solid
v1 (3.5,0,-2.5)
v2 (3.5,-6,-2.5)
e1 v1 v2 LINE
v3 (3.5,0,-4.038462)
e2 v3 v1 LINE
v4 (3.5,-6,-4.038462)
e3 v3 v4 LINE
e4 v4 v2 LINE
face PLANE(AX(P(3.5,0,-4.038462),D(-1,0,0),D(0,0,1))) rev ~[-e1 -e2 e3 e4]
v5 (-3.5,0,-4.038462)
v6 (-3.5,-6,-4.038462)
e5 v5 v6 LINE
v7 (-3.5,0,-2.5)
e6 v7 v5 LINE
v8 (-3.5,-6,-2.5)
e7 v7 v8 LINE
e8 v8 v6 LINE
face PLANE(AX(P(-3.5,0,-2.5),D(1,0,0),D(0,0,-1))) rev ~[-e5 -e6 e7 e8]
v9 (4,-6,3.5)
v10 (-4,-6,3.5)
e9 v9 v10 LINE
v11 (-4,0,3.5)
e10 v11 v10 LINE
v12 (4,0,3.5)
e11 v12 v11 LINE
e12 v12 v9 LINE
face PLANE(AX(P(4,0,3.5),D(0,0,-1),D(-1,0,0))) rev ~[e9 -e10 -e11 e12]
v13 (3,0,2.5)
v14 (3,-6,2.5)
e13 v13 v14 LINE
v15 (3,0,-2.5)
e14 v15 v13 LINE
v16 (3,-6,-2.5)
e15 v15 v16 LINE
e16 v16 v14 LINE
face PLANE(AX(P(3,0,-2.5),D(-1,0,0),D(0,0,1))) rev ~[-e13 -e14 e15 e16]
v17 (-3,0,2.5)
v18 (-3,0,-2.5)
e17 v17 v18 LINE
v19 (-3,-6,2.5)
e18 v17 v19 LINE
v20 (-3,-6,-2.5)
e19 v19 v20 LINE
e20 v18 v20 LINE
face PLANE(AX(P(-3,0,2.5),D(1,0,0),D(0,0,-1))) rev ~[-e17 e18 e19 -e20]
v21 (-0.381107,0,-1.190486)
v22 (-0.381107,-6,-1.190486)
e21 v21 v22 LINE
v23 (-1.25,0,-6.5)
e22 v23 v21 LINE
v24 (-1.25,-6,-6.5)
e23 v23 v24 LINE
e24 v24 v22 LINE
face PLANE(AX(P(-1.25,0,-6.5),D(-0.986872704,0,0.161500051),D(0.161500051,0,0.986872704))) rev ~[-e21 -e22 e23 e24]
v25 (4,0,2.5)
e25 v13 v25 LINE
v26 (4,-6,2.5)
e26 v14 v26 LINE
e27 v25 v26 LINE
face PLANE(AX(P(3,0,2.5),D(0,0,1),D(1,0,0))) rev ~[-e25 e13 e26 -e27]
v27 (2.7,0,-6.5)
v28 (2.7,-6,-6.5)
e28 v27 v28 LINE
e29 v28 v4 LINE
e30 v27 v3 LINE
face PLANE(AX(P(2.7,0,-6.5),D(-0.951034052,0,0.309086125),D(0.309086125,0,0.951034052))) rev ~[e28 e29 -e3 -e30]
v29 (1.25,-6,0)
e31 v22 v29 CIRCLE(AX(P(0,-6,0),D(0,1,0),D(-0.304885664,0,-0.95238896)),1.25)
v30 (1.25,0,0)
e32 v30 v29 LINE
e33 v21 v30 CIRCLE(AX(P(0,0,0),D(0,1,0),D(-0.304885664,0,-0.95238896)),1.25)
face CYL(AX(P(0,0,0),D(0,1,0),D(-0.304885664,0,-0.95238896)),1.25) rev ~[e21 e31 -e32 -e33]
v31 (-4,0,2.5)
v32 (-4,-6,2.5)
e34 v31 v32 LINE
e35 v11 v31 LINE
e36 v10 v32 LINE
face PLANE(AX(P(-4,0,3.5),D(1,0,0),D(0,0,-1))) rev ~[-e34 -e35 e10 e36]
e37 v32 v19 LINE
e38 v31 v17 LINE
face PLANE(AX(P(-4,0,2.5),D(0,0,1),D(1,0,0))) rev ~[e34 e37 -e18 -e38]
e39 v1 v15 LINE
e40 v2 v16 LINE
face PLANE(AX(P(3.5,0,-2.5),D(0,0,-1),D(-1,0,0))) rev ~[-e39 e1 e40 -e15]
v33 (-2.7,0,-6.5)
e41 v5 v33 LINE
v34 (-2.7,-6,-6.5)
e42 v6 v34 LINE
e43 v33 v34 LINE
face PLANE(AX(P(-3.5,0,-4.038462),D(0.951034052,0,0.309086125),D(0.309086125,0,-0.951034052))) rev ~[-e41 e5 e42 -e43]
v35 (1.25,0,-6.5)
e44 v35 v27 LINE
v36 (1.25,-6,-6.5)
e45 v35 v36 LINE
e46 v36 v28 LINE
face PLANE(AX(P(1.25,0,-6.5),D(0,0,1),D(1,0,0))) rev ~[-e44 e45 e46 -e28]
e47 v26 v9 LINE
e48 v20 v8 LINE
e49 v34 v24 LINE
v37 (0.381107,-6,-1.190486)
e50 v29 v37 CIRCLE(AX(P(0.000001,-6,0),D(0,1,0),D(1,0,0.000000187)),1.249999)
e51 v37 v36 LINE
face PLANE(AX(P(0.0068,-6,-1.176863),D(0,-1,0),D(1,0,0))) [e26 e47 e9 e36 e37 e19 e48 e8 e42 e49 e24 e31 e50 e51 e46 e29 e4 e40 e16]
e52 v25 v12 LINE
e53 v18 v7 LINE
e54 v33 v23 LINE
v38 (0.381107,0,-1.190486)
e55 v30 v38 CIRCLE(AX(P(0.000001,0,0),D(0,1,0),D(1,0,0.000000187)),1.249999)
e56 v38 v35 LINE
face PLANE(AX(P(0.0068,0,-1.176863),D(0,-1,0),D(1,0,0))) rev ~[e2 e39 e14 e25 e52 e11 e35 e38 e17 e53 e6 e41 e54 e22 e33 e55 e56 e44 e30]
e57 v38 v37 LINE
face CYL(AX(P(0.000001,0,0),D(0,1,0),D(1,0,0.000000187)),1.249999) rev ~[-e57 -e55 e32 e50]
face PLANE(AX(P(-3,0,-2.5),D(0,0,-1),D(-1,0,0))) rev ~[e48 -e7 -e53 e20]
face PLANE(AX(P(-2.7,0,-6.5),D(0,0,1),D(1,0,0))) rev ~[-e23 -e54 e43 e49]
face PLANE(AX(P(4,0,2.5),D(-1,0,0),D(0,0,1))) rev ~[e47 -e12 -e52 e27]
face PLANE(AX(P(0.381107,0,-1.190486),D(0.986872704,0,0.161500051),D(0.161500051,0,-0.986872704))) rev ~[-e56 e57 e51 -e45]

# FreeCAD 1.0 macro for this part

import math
import FreeCAD as App
import Part
import Sketcher
from FreeCAD import Vector

doc = App.newDocument("Part")
params = doc.addObject("Spreadsheet::Sheet", "Params")
for row, (alias, value) in enumerate([
    ("sketch1_width", "8 mm"),
    ("sketch1_width2", "1 mm"),
    ("sketch1_height", "5 mm"),
    ("sketch1_radius", "1.25 mm"),
    ("sketch1_width3", "0.5 mm"),
    ("pad1_length", "6 mm"),
], start=1):
    params.set(f"A{row}", alias)
    params.set(f"B{row}", "=" + value)
    params.setAlias(f"B{row}", alias)

body = doc.addObject("PartDesign::Body", "Body")

sketch1 = doc.addObject("Sketcher::SketchObject", "Sketch")
body.addObject(sketch1)
sketch1.AttachmentSupport = (doc.XZ_Plane, [""])
sketch1.MapMode = "FlatFace"
sketch1.addGeometry(Part.LineSegment(Vector(4, 3.5, 0), Vector(-4, 3.5, 0)), False)
sketch1.addGeometry(Part.LineSegment(Vector(-4, 3.5, 0), Vector(-4, 2.5, 0)), False)
sketch1.addGeometry(Part.LineSegment(Vector(-4, 2.5, 0), Vector(-3, 2.5, 0)), False)
sketch1.addGeometry(Part.LineSegment(Vector(-3, 2.5, 0), Vector(-3, -2.5, 0)), False)
sketch1.addGeometry(Part.LineSegment(Vector(-3, -2.5, 0), Vector(-3.5, -2.5, 0)), False)
sketch1.addGeometry(Part.LineSegment(Vector(-3.5, -2.5, 0), Vector(-3.5, -4, 0)), False)
sketch1.addGeometry(Part.LineSegment(Vector(-3.5, -4, 0), Vector(-2.7, -6.5, 0)), False)
sketch1.addGeometry(Part.LineSegment(Vector(-2.7, -6.5, 0), Vector(-1.2, -6.5, 0)), False)
sketch1.addGeometry(Part.LineSegment(Vector(-1.2, -6.5, 0), Vector(-0.4, -1.2, 0)), False)
sketch1.addGeometry(Part.ArcOfCircle(Part.Circle(Vector(0, 0, 0), Vector(0, 0, 1), 1.2), math.radians(0), math.radians(252)), False)
sketch1.addGeometry(Part.ArcOfCircle(Part.Circle(Vector(0, 0, 0), Vector(0, 0, 1), 1.2), math.radians(-72), math.radians(0)), False)
sketch1.addGeometry(Part.LineSegment(Vector(0.4, -1.2, 0), Vector(1.2, -6.5, 0)), False)
sketch1.addGeometry(Part.LineSegment(Vector(1.2, -6.5, 0), Vector(2.7, -6.5, 0)), False)
sketch1.addGeometry(Part.LineSegment(Vector(2.7, -6.5, 0), Vector(3.5, -4, 0)), False)
sketch1.addGeometry(Part.LineSegment(Vector(3.5, -4, 0), Vector(3.5, -2.5, 0)), False)
sketch1.addGeometry(Part.LineSegment(Vector(3.5, -2.5, 0), Vector(3, -2.5, 0)), False)
sketch1.addGeometry(Part.LineSegment(Vector(3, -2.5, 0), Vector(3, 2.5, 0)), False)
sketch1.addGeometry(Part.LineSegment(Vector(3, 2.5, 0), Vector(4, 2.5, 0)), False)
sketch1.addGeometry(Part.LineSegment(Vector(4, 2.5, 0), Vector(4, 3.5, 0)), False)
sketch1.addConstraint(Sketcher.Constraint("Coincident", 0, 2, 1, 1))
sketch1.addConstraint(Sketcher.Constraint("Coincident", 1, 2, 2, 1))
sketch1.addConstraint(Sketcher.Constraint("Coincident", 2, 2, 3, 1))
sketch1.addConstraint(Sketcher.Constraint("Coincident", 3, 2, 4, 1))
sketch1.addConstraint(Sketcher.Constraint("Coincident", 4, 2, 5, 1))
sketch1.addConstraint(Sketcher.Constraint("Coincident", 5, 2, 6, 1))
sketch1.addConstraint(Sketcher.Constraint("Coincident", 6, 2, 7, 1))
sketch1.addConstraint(Sketcher.Constraint("Coincident", 7, 2, 8, 1))
sketch1.addConstraint(Sketcher.Constraint("Coincident", 8, 2, 9, 2))
sketch1.addConstraint(Sketcher.Constraint("Tangent", 9, 1, 10, 2))
sketch1.addConstraint(Sketcher.Constraint("Coincident", 10, 1, 11, 1))
sketch1.addConstraint(Sketcher.Constraint("Coincident", 11, 2, 12, 1))
sketch1.addConstraint(Sketcher.Constraint("Coincident", 12, 2, 13, 1))
sketch1.addConstraint(Sketcher.Constraint("Coincident", 13, 2, 14, 1))
sketch1.addConstraint(Sketcher.Constraint("Coincident", 14, 2, 15, 1))
sketch1.addConstraint(Sketcher.Constraint("Coincident", 15, 2, 16, 1))
sketch1.addConstraint(Sketcher.Constraint("Coincident", 16, 2, 17, 1))
sketch1.addConstraint(Sketcher.Constraint("Coincident", 17, 2, 18, 1))
sketch1.addConstraint(Sketcher.Constraint("Coincident", 18, 2, 0, 1))
sketch1.addConstraint(Sketcher.Constraint("Horizontal", 0))
sketch1.addConstraint(Sketcher.Constraint("Vertical", 1))
sketch1.addConstraint(Sketcher.Constraint("Horizontal", 2))
sketch1.addConstraint(Sketcher.Constraint("Vertical", 3))
sketch1.addConstraint(Sketcher.Constraint("Horizontal", 4))
sketch1.addConstraint(Sketcher.Constraint("Vertical", 5))
sketch1.addConstraint(Sketcher.Constraint("Horizontal", 7))
sketch1.addConstraint(Sketcher.Constraint("Horizontal", 12))
sketch1.addConstraint(Sketcher.Constraint("Vertical", 14))
sketch1.addConstraint(Sketcher.Constraint("Horizontal", 15))
sketch1.addConstraint(Sketcher.Constraint("Vertical", 16))
sketch1.addConstraint(Sketcher.Constraint("Horizontal", 17))
sketch1.addConstraint(Sketcher.Constraint("Vertical", 18))
sketch1.addConstraint(Sketcher.Constraint("Coincident", 9, 3, -1, 1))
sketch1.addConstraint(Sketcher.Constraint("Equal", 9, 10))
sketch1.addConstraint(Sketcher.Constraint("Symmetric", 2, 2, 15, 2, -1, 1))
sketch1.addConstraint(Sketcher.Constraint("Symmetric", 7, 2, 11, 2, -2))
sketch1.addConstraint(Sketcher.Constraint("Symmetric", 5, 2, 13, 2, -2))
sketch1.addConstraint(Sketcher.Constraint("Symmetric", 1, 2, 17, 2, -2))
sketch1.addConstraint(Sketcher.Constraint("PointOnObject", 9, 1, -1))
sketch1.addConstraint(Sketcher.Constraint("Horizontal", 8, 2, 10, 1))
sketch1.addConstraint(Sketcher.Constraint("Horizontal", 4, 2, 14, 2))
sketch1.addConstraint(Sketcher.Constraint("Vertical", 9, 1, 11, 2))
sketch1.addConstraint(Sketcher.Constraint("Equal", 7, 12))
sketch1.addConstraint(Sketcher.Constraint("Equal", 17, 1))
sketch1.addConstraint(Sketcher.Constraint("DistanceX", 0, 2, 0, 1, 8.0))
sketch1.addConstraint(Sketcher.Constraint("DistanceX", 2, 1, 2, 2, 1.0))
sketch1.addConstraint(Sketcher.Constraint("DistanceY", 3, 2, 3, 1, 5.0))
sketch1.addConstraint(Sketcher.Constraint("Radius", 9, 1.25))
sketch1.addConstraint(Sketcher.Constraint("DistanceX", 4, 2, 4, 1, 0.5))
sketch1.addConstraint(Sketcher.Constraint("DistanceY", 6, 2, 3, 2, 4.0))
sketch1.addConstraint(Sketcher.Constraint("DistanceX", 7, 1, 7, 2, 1.45))
sketch1.addConstraint(Sketcher.Constraint("Distance", 8, 5.380141))
sketch1.addConstraint(Sketcher.Constraint("DistanceY", 5, 2, 5, 1, 1.538462))
sketch1.setExpression("Constraints[44]", "Params.sketch1_width")
sketch1.setExpression("Constraints[45]", "Params.sketch1_width2")
sketch1.setExpression("Constraints[46]", "Params.sketch1_height")
sketch1.setExpression("Constraints[47]", "Params.sketch1_radius")
sketch1.setExpression("Constraints[48]", "Params.sketch1_width3")
pad1 = doc.addObject("PartDesign::Pad", "Pad")
body.addObject(pad1)
pad1.Profile = sketch1
pad1.setExpression("Length", "Params.pad1_length")

doc.recompute()
